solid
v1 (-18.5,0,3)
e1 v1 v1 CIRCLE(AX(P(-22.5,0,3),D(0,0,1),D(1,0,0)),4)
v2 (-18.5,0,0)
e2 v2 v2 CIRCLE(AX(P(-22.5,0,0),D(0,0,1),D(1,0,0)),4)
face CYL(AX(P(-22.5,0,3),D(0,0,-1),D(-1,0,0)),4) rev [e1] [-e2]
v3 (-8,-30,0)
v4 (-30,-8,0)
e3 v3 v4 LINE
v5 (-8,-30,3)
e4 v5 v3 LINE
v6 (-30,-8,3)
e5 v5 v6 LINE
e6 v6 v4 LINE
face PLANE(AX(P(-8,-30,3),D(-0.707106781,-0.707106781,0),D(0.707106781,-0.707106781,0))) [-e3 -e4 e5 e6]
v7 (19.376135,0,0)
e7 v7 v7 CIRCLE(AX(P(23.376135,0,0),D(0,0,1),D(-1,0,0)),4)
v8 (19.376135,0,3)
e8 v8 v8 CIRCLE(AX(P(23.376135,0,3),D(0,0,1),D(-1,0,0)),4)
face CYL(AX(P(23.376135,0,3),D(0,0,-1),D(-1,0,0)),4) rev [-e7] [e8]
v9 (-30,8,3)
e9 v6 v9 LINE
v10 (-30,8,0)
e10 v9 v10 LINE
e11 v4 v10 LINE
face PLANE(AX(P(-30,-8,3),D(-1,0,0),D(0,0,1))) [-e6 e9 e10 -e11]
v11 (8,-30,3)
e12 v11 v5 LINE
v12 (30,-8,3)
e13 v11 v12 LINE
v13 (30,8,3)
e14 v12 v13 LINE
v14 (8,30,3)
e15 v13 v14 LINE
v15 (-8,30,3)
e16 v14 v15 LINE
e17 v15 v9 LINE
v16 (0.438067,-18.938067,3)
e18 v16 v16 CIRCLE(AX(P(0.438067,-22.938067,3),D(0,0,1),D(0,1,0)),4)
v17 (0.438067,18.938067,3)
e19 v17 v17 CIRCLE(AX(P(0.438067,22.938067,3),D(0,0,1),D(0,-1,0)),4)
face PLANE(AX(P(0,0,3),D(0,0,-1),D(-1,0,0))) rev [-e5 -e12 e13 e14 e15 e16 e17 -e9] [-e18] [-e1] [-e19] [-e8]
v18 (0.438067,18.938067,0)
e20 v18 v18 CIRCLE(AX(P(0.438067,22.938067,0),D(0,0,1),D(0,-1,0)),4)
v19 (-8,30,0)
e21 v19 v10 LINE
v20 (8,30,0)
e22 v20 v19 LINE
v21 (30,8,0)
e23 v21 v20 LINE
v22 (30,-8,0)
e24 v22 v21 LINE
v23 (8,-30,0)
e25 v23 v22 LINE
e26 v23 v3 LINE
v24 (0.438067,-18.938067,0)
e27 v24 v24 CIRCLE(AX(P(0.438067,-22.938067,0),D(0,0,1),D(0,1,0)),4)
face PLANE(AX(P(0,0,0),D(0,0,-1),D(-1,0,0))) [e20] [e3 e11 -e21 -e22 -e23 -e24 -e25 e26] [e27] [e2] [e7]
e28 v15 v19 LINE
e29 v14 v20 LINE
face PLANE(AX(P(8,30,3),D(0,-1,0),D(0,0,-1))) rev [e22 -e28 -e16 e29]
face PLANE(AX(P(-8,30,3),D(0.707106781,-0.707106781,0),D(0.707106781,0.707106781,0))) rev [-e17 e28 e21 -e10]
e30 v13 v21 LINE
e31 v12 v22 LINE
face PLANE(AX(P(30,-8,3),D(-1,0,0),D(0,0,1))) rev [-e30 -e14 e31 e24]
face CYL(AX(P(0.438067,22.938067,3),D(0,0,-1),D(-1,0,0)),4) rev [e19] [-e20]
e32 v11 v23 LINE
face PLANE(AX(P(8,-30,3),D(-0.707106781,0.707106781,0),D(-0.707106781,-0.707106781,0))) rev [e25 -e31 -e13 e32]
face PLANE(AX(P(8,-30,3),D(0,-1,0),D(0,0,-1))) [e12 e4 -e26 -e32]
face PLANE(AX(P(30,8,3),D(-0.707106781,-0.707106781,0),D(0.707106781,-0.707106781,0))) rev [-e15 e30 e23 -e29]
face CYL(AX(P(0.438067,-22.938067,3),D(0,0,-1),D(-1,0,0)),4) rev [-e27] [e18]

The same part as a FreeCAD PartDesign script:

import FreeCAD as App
import Part
import Sketcher

doc = App.newDocument("Part")
params = doc.addObject("Spreadsheet::Sheet", "Params")
for row, (alias, value) in enumerate([
    ("sketch1_width", "16 mm"),
    ("pad1_length", "3 mm"),
    ("sketch2_diameter", "8 mm"),
], start=1):
    params.set(f"A{row}", alias)
    params.set(f"B{row}", "=" + value)
    params.setAlias(f"B{row}", alias)

body = doc.addObject("PartDesign::Body", "Body")

sketch1 = body.newObject("Sketcher::SketchObject", "Sketch")
sketch1.AttachmentSupport = (doc.getObject("XY_Plane"), [""])
sketch1.MapMode = "FlatFace"
sketch1.addGeometry([
    Part.LineSegment(App.Vector(-8, 30, 0), App.Vector(-30, 8, 0)),
    Part.LineSegment(App.Vector(-30, 8, 0), App.Vector(-30, -8, 0)),
    Part.LineSegment(App.Vector(-30, -8, 0), App.Vector(-8, -30, 0)),
    Part.LineSegment(App.Vector(-8, -30, 0), App.Vector(8, -30, 0)),
    Part.LineSegment(App.Vector(8, -30, 0), App.Vector(30, -8, 0)),
    Part.LineSegment(App.Vector(30, -8, 0), App.Vector(30, 8, 0)),
    Part.LineSegment(App.Vector(30, 8, 0), App.Vector(8, 30, 0)),
    Part.LineSegment(App.Vector(8, 30, 0), App.Vector(-8, 30, 0)),
], False)
sketch1.addConstraint([
    Sketcher.Constraint("Coincident", 0, 2, 1, 1),
    Sketcher.Constraint("Coincident", 1, 2, 2, 1),
    Sketcher.Constraint("Coincident", 2, 2, 3, 1),
    Sketcher.Constraint("Coincident", 3, 2, 4, 1),
    Sketcher.Constraint("Coincident", 4, 2, 5, 1),
    Sketcher.Constraint("Coincident", 5, 2, 6, 1),
    Sketcher.Constraint("Coincident", 6, 2, 7, 1),
    Sketcher.Constraint("Coincident", 7, 2, 0, 1),
    Sketcher.Constraint("Vertical", 1),
    Sketcher.Constraint("Horizontal", 3),
    Sketcher.Constraint("Vertical", 5),
    Sketcher.Constraint("Horizontal", 7),
    Sketcher.Constraint("Symmetric", 0, 2, 4, 2, -1, 1),
    Sketcher.Constraint("Symmetric", 2, 2, 6, 2, -1, 1),
    Sketcher.Constraint("Perpendicular", 0, 2),
    Sketcher.Constraint("Perpendicular", 2, 4),
    Sketcher.Constraint("Perpendicular", 4, 6),
    Sketcher.Constraint("Horizontal", 1, 2, 4, 2),
    Sketcher.Constraint("Vertical", 3, 2, 6, 2),
    Sketcher.Constraint("Equal", 7, 1),
    Sketcher.Constraint("DistanceX", 3, 1, 3, 2, 16.0),
    Sketcher.Constraint("DistanceX", 0, 2, -1, 1, 30.0),
])
sketch1.setExpression("Constraints[20]", "Params.sketch1_width")
pad1 = body.newObject("PartDesign::Pad", "Pad")
pad1.Profile = sketch1
pad1.setExpression("Length", "Params.pad1_length")

sketch2 = body.newObject("Sketcher::SketchObject", "Sketch001")
sketch2.AttachmentSupport = (doc.getObject("XY_Plane"), [""])
sketch2.MapMode = "FlatFace"
sketch2.addGeometry(Part.Circle(App.Vector(-22.5, 0, 0), App.Vector(0, 0, 1), 4), False)
sketch2.addConstraint([
    Sketcher.Constraint("PointOnObject", 0, 3, -1),
    Sketcher.Constraint("Diameter", 0, 8.0),
    Sketcher.Constraint("DistanceX", 0, 3, -1, 1, 22.5),
])
sketch2.setExpression("Constraints[1]", "Params.sketch2_diameter")
pocket1 = body.newObject("PartDesign::Pocket", "Pocket")
pocket1.Profile = sketch2
pocket1.Type = "ThroughAll"
pocket1.Reversed = True
doc.recompute()

datumline = body.newObject("PartDesign::Line", "DatumLine")
datumline.Placement = App.Placement(App.Vector(0.438067, 0, 0), App.Rotation(App.Vector(0, 0, 1), App.Vector(0, 0, 1)))
polarpattern = body.newObject("PartDesign::PolarPattern", "PolarPattern")
polarpattern.Originals = [pocket1]
polarpattern.Axis = (datumline, [""])
polarpattern.Angle = 360
polarpattern.Occurrences = 4
body.Tip = polarpattern

doc.recompute()
